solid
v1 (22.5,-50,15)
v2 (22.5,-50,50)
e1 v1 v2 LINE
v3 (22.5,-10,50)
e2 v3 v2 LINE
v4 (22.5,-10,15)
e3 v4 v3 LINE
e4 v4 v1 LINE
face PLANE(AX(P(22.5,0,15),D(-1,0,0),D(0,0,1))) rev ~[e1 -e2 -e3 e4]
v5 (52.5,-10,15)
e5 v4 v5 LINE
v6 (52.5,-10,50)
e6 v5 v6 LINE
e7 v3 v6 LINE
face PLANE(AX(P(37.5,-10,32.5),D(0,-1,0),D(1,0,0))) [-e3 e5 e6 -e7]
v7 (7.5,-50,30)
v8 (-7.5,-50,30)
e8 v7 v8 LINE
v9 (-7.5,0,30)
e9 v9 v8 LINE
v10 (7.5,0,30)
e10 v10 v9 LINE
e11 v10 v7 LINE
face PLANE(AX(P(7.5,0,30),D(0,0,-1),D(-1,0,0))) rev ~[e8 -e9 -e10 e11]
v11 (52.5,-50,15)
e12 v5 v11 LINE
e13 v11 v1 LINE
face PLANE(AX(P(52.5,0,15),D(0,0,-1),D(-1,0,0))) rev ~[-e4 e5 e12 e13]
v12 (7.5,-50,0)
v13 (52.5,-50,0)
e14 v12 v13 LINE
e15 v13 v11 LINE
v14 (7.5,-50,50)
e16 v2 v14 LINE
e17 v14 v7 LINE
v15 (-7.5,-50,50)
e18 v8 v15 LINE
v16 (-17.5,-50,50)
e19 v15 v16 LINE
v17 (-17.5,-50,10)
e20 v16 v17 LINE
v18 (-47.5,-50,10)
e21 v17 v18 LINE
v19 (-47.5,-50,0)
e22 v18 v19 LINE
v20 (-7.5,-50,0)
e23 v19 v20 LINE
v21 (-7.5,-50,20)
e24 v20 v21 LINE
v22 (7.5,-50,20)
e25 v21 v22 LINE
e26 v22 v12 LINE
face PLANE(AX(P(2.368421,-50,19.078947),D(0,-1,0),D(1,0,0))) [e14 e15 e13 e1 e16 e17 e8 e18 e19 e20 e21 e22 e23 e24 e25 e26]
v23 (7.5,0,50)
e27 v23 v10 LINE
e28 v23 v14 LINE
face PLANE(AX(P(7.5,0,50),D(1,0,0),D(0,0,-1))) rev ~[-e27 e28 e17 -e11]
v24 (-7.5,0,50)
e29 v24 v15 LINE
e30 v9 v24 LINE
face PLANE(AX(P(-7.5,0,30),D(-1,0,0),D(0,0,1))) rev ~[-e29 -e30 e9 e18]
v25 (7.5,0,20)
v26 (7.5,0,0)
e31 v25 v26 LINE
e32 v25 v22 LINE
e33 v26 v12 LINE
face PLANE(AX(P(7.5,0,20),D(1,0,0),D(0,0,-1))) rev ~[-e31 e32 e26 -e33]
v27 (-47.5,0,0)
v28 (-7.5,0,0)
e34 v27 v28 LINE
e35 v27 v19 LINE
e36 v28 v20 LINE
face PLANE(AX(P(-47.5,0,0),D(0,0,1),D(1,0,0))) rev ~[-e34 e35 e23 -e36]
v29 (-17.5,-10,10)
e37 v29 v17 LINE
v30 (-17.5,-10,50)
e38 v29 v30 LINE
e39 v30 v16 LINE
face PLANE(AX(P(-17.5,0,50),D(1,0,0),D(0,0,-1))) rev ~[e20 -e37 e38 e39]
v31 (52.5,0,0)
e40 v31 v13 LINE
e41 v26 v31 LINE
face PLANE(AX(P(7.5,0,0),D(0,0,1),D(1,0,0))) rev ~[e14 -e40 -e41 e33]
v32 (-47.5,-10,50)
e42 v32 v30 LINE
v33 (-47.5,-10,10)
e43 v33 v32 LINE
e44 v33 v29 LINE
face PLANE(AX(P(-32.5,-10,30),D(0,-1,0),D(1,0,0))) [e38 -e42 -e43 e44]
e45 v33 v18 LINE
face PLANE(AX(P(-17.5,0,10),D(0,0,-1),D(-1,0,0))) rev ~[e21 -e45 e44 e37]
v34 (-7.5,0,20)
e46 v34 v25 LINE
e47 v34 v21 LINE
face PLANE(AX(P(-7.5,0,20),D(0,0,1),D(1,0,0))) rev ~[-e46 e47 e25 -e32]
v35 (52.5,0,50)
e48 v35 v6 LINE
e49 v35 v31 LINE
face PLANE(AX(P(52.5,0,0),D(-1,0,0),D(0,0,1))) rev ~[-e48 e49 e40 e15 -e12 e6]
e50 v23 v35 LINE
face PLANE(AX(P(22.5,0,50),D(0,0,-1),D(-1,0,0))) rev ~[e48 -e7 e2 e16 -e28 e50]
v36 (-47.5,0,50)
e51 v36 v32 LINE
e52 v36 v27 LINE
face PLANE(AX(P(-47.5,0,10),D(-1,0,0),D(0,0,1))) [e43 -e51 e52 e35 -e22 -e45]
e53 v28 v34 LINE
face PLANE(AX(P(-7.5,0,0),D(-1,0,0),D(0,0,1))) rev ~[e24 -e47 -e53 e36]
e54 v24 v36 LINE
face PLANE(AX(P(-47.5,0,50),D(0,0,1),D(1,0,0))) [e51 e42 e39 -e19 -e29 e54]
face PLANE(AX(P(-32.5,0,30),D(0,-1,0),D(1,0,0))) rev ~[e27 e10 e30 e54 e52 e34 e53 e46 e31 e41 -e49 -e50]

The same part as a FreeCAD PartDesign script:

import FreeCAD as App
import Part
import Sketcher

doc = App.newDocument("Part")
body = doc.addObject("PartDesign::Body", "Body")

# Sketch on XZ plane
sketch1 = doc.addObject("Sketcher::SketchObject", "Sketch")
body.addObject(sketch1)
sketch1.AttachmentSupport = (doc.XZ_Plane, [""])
sketch1.MapMode = "FlatFace"
sketch1.addGeometry(Part.LineSegment(App.Vector(-18, 50, 0), App.Vector(-18, 10, 0)), False)
sketch1.addGeometry(Part.LineSegment(App.Vector(-18, 10, 0), App.Vector(-48, 10, 0)), False)
sketch1.addGeometry(Part.LineSegment(App.Vector(-48, 10, 0), App.Vector(-48, 0, 0)), False)
sketch1.addGeometry(Part.LineSegment(App.Vector(-48, 0, 0), App.Vector(-8, 0, 0)), False)
sketch1.addGeometry(Part.LineSegment(App.Vector(-8, 0, 0), App.Vector(-8, 20, 0)), False)
sketch1.addGeometry(Part.LineSegment(App.Vector(-8, 20, 0), App.Vector(8, 20, 0)), False)
sketch1.addGeometry(Part.LineSegment(App.Vector(8, 20, 0), App.Vector(8, 0, 0)), False)
sketch1.addGeometry(Part.LineSegment(App.Vector(8, 0, 0), App.Vector(52, 0, 0)), False)
sketch1.addGeometry(Part.LineSegment(App.Vector(52, 0, 0), App.Vector(52, 15, 0)), False)
sketch1.addGeometry(Part.LineSegment(App.Vector(52, 15, 0), App.Vector(22, 15, 0)), False)
sketch1.addGeometry(Part.LineSegment(App.Vector(22, 15, 0), App.Vector(22, 50, 0)), False)
sketch1.addGeometry(Part.LineSegment(App.Vector(22, 50, 0), App.Vector(8, 50, 0)), False)
sketch1.addGeometry(Part.LineSegment(App.Vector(8, 50, 0), App.Vector(8, 30, 0)), False)
sketch1.addGeometry(Part.LineSegment(App.Vector(8, 30, 0), App.Vector(-8, 30, 0)), False)
sketch1.addGeometry(Part.LineSegment(App.Vector(-8, 30, 0), App.Vector(-8, 50, 0)), False)
sketch1.addGeometry(Part.LineSegment(App.Vector(-8, 50, 0), App.Vector(-18, 50, 0)), False)
sketch1.addConstraint(Sketcher.Constraint("Coincident", 0, 2, 1, 1))
sketch1.addConstraint(Sketcher.Constraint("Coincident", 1, 2, 2, 1))
sketch1.addConstraint(Sketcher.Constraint("Coincident", 2, 2, 3, 1))
sketch1.addConstraint(Sketcher.Constraint("Coincident", 3, 2, 4, 1))
sketch1.addConstraint(Sketcher.Constraint("Coincident", 4, 2, 5, 1))
sketch1.addConstraint(Sketcher.Constraint("Coincident", 5, 2, 6, 1))
sketch1.addConstraint(Sketcher.Constraint("Coincident", 6, 2, 7, 1))
sketch1.addConstraint(Sketcher.Constraint("Coincident", 7, 2, 8, 1))
sketch1.addConstraint(Sketcher.Constraint("Coincident", 8, 2, 9, 1))
sketch1.addConstraint(Sketcher.Constraint("Coincident", 9, 2, 10, 1))
sketch1.addConstraint(Sketcher.Constraint("Coincident", 10, 2, 11, 1))
sketch1.addConstraint(Sketcher.Constraint("Coincident", 11, 2, 12, 1))
sketch1.addConstraint(Sketcher.Constraint("Coincident", 12, 2, 13, 1))
sketch1.addConstraint(Sketcher.Constraint("Coincident", 13, 2, 14, 1))
sketch1.addConstraint(Sketcher.Constraint("Coincident", 14, 2, 15, 1))
sketch1.addConstraint(Sketcher.Constraint("Coincident", 15, 2, 0, 1))
sketch1.addConstraint(Sketcher.Constraint("Vertical", 0))
sketch1.addConstraint(Sketcher.Constraint("Horizontal", 1))
sketch1.addConstraint(Sketcher.Constraint("Vertical", 2))
sketch1.addConstraint(Sketcher.Constraint("Horizontal", 3))
sketch1.addConstraint(Sketcher.Constraint("Vertical", 4))
sketch1.addConstraint(Sketcher.Constraint("Horizontal", 5))
sketch1.addConstraint(Sketcher.Constraint("Vertical", 6))
sketch1.addConstraint(Sketcher.Constraint("Horizontal", 7))
sketch1.addConstraint(Sketcher.Constraint("Vertical", 8))
sketch1.addConstraint(Sketcher.Constraint("Horizontal", 9))
sketch1.addConstraint(Sketcher.Constraint("Vertical", 10))
sketch1.addConstraint(Sketcher.Constraint("Horizontal", 11))
sketch1.addConstraint(Sketcher.Constraint("Vertical", 12))
sketch1.addConstraint(Sketcher.Constraint("Horizontal", 13))
sketch1.addConstraint(Sketcher.Constraint("Vertical", 14))
sketch1.addConstraint(Sketcher.Constraint("Horizontal", 15))
sketch1.addConstraint(Sketcher.Constraint("Symmetric", 3, 2, 6, 2, -1, 1))
sketch1.addConstraint(Sketcher.Constraint("Symmetric", 11, 2, 14, 2, -2))
sketch1.addConstraint(Sketcher.Constraint("PointOnObject", 2, 2, -1))
sketch1.addConstraint(Sketcher.Constraint("Vertical", 6, 2, 11, 2))
sketch1.addConstraint(Sketcher.Constraint("Equal", 1, 9))
sketch1.addConstraint(Sketcher.Constraint("Equal", 5, 11))
sketch1.addConstraint(Sketcher.Constraint("Equal", 3, 0))
sketch1.addConstraint(Sketcher.Constraint("Equal", 15, 2))
sketch1.addConstraint(Sketcher.Constraint("Equal", 13, 8))
sketch1.addConstraint(Sketcher.Constraint("Equal", 6, 12))
sketch1.addConstraint(Sketcher.Constraint("DistanceX", 1, 2, 1, 1, 30.0))
sketch1.addConstraint(Sketcher.Constraint("DistanceX", 3, 1, 3, 2, 40.0))
sketch1.addConstraint(Sketcher.Constraint("DistanceX", 5, 1, 5, 2, 15.0))
sketch1.addConstraint(Sketcher.Constraint("DistanceY", 4, 1, 4, 2, 20.0))
pad1 = doc.addObject("PartDesign::Pad", "Pad")
body.addObject(pad1)
pad1.Profile = sketch1
pad1.Length = 50

# Sketch on XZ plane
sketch2 = doc.addObject("Sketcher::SketchObject", "Sketch001")
body.addObject(sketch2)
sketch2.AttachmentSupport = (doc.XZ_Plane, [""])
sketch2.MapMode = "FlatFace"
sketch2.addGeometry(Part.LineSegment(App.Vector(-48, 50, 0), App.Vector(-48, 10, 0)), False)
sketch2.addGeometry(Part.LineSegment(App.Vector(-48, 10, 0), App.Vector(-18, 10, 0)), False)
sketch2.addGeometry(Part.LineSegment(App.Vector(-18, 10, 0), App.Vector(-18, 50, 0)), False)
sketch2.addGeometry(Part.LineSegment(App.Vector(-18, 50, 0), App.Vector(-48, 50, 0)), False)
sketch2.addGeometry(Part.LineSegment(App.Vector(22, 50, 0), App.Vector(22, 15, 0)), False)
sketch2.addGeometry(Part.LineSegment(App.Vector(22, 15, 0), App.Vector(52, 15, 0)), False)
sketch2.addGeometry(Part.LineSegment(App.Vector(52, 15, 0), App.Vector(52, 50, 0)), False)
sketch2.addGeometry(Part.LineSegment(App.Vector(52, 50, 0), App.Vector(22, 50, 0)), False)
sketch2.addConstraint(Sketcher.Constraint("Coincident", 0, 2, 1, 1))
sketch2.addConstraint(Sketcher.Constraint("Coincident", 1, 2, 2, 1))
sketch2.addConstraint(Sketcher.Constraint("Coincident", 2, 2, 3, 1))
sketch2.addConstraint(Sketcher.Constraint("Coincident", 3, 2, 0, 1))
sketch2.addConstraint(Sketcher.Constraint("Coincident", 4, 2, 5, 1))
sketch2.addConstraint(Sketcher.Constraint("Coincident", 5, 2, 6, 1))
sketch2.addConstraint(Sketcher.Constraint("Coincident", 6, 2, 7, 1))
sketch2.addConstraint(Sketcher.Constraint("Coincident", 7, 2, 4, 1))
sketch2.addConstraint(Sketcher.Constraint("Vertical", 0))
sketch2.addConstraint(Sketcher.Constraint("Horizontal", 1))
sketch2.addConstraint(Sketcher.Constraint("Vertical", 2))
sketch2.addConstraint(Sketcher.Constraint("Horizontal", 3))
sketch2.addConstraint(Sketcher.Constraint("Vertical", 4))
sketch2.addConstraint(Sketcher.Constraint("Horizontal", 5))
sketch2.addConstraint(Sketcher.Constraint("Vertical", 6))
sketch2.addConstraint(Sketcher.Constraint("Horizontal", 7))
sketch2.addConstraint(Sketcher.Constraint("Horizontal", 3, 2, 6, 2))
sketch2.addConstraint(Sketcher.Constraint("Equal", 3, 5))
sketch2.addConstraint(Sketcher.Constraint("DistanceX", 1, 1, 1, 2, 30.0))
sketch2.addConstraint(Sketcher.Constraint("DistanceY", 0, 2, 0, 1, 40.0))
sketch2.addConstraint(Sketcher.Constraint("DistanceY", 4, 2, 4, 1, 35.0))
sketch2.addConstraint(Sketcher.Constraint("DistanceY", -1, 1, 0, 2, 10.0))
sketch2.addConstraint(Sketcher.Constraint("DistanceX", 1, 2, 4, 2, 40.0))
sketch2.addConstraint(Sketcher.Constraint("DistanceX", 0, 2, -1, 1, 47.5))
pad2 = doc.addObject("PartDesign::Pad", "Pad001")
body.addObject(pad2)
pad2.Profile = sketch2
pad2.Length = 10

doc.recompute()
